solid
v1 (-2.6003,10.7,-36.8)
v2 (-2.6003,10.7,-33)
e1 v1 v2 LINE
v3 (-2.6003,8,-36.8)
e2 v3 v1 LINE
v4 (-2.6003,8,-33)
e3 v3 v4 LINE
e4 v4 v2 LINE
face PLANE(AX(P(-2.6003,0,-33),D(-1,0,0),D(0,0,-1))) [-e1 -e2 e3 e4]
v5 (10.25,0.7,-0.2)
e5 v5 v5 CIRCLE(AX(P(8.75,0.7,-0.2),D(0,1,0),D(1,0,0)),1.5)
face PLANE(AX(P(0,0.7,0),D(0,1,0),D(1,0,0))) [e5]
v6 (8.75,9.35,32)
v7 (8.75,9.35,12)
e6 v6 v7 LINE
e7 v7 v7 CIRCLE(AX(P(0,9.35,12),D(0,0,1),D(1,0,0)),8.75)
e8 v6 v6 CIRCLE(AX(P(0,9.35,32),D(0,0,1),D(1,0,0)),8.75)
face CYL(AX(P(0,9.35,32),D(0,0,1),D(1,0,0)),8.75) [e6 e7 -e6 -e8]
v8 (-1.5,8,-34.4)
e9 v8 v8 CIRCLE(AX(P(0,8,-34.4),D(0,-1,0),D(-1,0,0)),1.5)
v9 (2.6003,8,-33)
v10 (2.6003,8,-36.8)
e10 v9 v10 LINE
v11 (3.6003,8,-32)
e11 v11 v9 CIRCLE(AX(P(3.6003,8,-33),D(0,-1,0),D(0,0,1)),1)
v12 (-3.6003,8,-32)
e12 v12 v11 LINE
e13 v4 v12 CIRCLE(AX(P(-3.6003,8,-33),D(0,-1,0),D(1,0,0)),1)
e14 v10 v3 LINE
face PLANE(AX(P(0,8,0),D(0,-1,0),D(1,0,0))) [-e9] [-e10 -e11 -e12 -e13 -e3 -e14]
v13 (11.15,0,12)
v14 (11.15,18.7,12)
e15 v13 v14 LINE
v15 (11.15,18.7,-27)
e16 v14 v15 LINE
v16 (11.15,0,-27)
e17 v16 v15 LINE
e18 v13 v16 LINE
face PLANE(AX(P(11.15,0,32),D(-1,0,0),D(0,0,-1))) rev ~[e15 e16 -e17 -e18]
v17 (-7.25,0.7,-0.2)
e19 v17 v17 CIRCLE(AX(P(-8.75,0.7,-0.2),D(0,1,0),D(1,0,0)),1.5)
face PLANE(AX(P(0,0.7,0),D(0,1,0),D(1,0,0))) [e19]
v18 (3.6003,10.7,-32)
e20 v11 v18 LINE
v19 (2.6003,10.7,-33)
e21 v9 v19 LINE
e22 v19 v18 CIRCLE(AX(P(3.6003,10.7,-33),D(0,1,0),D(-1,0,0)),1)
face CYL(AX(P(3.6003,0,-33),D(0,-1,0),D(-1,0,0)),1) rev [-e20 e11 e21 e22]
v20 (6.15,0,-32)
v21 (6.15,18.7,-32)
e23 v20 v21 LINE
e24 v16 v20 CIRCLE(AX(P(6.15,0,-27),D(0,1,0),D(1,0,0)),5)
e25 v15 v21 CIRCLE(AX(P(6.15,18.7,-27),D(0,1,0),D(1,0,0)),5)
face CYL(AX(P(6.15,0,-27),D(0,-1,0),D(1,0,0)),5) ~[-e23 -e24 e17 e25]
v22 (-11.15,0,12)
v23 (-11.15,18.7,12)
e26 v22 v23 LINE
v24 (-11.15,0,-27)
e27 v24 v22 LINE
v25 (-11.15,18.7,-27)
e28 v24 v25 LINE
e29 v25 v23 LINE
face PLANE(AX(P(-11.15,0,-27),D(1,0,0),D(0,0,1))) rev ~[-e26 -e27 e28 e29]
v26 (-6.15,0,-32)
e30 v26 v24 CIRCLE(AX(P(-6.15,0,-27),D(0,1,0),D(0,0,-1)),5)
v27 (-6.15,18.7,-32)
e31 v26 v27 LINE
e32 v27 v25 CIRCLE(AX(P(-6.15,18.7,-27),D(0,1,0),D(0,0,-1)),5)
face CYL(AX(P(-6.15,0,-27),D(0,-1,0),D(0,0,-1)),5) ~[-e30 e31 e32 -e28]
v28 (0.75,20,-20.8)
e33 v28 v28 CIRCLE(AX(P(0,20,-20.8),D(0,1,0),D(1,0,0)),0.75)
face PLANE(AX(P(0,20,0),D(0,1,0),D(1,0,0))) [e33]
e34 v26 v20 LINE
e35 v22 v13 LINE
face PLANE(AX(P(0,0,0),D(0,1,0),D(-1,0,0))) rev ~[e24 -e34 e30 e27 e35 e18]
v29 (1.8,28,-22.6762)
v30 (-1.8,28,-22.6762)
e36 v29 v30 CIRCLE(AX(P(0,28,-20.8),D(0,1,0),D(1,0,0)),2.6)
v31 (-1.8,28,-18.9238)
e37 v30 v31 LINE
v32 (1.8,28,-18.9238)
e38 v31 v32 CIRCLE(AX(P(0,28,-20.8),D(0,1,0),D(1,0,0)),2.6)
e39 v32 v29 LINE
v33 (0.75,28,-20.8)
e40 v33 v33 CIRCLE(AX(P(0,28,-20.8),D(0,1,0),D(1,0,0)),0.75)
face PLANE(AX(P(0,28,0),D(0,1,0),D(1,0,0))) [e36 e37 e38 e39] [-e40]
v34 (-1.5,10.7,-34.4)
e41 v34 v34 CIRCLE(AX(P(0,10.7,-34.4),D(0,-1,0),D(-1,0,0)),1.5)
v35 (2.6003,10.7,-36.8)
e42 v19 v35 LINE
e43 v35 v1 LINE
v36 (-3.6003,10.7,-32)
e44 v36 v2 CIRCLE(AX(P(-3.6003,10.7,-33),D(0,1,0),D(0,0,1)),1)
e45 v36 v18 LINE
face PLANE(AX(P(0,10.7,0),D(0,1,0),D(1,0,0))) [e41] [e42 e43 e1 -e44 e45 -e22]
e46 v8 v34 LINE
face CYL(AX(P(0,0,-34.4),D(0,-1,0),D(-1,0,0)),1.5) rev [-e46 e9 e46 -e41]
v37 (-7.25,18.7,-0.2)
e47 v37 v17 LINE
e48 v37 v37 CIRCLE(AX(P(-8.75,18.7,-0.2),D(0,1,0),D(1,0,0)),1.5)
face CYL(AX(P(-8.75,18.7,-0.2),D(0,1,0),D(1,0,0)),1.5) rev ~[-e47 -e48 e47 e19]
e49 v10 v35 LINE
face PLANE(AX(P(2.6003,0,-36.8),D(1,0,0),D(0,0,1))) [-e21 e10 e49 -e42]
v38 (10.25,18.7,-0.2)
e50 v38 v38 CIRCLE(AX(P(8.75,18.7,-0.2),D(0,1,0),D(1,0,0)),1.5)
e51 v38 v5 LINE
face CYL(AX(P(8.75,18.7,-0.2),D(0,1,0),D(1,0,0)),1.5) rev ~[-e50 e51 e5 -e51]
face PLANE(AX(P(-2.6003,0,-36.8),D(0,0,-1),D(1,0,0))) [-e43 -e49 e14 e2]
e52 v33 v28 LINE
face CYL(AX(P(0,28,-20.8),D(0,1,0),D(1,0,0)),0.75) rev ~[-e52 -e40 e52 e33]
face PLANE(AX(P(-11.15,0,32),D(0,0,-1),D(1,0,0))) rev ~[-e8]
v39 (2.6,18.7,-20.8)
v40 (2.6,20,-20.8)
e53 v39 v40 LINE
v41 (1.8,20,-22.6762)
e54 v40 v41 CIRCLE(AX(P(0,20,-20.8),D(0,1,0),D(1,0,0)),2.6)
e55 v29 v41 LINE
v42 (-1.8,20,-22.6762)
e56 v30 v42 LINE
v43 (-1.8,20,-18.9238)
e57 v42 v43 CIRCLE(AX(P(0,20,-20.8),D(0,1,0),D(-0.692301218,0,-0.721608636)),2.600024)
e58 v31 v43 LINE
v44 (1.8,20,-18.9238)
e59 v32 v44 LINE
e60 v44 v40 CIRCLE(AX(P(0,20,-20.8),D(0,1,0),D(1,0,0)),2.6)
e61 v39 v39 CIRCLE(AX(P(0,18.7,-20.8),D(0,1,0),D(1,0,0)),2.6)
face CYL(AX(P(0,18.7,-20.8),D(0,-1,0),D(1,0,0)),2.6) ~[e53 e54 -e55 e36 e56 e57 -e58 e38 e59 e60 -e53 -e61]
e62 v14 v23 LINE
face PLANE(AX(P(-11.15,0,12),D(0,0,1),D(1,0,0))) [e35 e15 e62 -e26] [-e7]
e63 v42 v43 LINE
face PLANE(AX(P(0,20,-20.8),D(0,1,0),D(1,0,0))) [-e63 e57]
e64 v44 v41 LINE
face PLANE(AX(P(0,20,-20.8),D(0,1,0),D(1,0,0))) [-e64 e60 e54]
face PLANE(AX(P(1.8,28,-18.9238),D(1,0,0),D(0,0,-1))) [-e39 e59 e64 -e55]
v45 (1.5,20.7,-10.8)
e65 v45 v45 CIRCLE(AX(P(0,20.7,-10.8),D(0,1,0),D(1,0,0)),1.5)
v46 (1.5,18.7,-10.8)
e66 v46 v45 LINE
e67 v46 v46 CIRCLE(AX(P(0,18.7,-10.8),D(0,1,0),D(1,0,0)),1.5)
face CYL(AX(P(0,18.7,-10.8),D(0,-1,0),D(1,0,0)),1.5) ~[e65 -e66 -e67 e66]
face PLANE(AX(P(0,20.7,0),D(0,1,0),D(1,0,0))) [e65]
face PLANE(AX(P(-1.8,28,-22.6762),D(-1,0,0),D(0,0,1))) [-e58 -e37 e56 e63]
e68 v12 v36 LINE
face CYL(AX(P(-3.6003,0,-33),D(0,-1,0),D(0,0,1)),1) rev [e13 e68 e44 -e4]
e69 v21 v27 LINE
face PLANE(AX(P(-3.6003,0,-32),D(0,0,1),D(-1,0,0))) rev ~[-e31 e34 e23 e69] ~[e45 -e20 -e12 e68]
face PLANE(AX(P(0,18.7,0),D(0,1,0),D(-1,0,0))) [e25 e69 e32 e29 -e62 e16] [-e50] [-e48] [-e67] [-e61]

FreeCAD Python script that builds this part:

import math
import FreeCAD as App
import Part
import Sketcher
from FreeCAD import Vector
Q = App.Units.Quantity


def add_polygon(sketch, points):
    """Adds a closed chain of lines whose ends are joined by coincident constraints."""
    first, n = sketch.GeometryCount, len(points)
    for a, b in zip(points, points[1:] + points[:1]):
        sketch.addGeometry(Part.LineSegment(App.Vector(*a, 0), App.Vector(*b, 0)), False)
    for i in range(n):
        sketch.addConstraint(Sketcher.Constraint("Coincident", first + i, 2, first + (i + 1) % n, 1))

doc = App.newDocument("Part")
body = doc.addObject("PartDesign::Body", "Body")

sketch1 = body.newObject("Sketcher::SketchObject", "Sketch")
sketch1.AttachmentSupport = (doc.getObject("XZ_Plane"), [""])
sketch1.MapMode = "FlatFace"
sketch1.addGeometry([
    Part.LineSegment(Vector(-11.15, -27, 0), Vector(-11.15, 32, 0)),
    Part.LineSegment(Vector(-11.15, 32, 0), Vector(11.15, 32, 0)),
    Part.LineSegment(Vector(11.15, 32, 0), Vector(11.15, -27, 0)),
    Part.ArcOfCircle(Part.Circle(Vector(6.15, -27, 0), Vector(0, 0, 1), 5), math.radians(-90), math.radians(0)),
    Part.LineSegment(Vector(6.15, -32, 0), Vector(3.6003, -32, 0)),
    Part.ArcOfCircle(Part.Circle(Vector(3.6003, -33, 0), Vector(0, 0, 1), 1), math.radians(90), math.radians(180)),
    Part.LineSegment(Vector(2.6003, -33, 0), Vector(2.6003, -36.8, 0)),
    Part.LineSegment(Vector(2.6003, -36.8, 0), Vector(-2.6003, -36.8, 0)),
    Part.LineSegment(Vector(-2.6003, -36.8, 0), Vector(-2.6003, -33, 0)),
    Part.ArcOfCircle(Part.Circle(Vector(-3.6003, -33, 0), Vector(0, 0, 1), 1), math.radians(0), math.radians(90)),
    Part.LineSegment(Vector(-3.6003, -32, 0), Vector(-6.15, -32, 0)),
    Part.ArcOfCircle(Part.Circle(Vector(-6.15, -27, 0), Vector(0, 0, 1), 5), math.radians(180), math.radians(270)),
    Part.Circle(Vector(0, -34.4, 0), Vector(0, 0, 1), 1.5),
], False)
sketch1.addConstraint([
    Sketcher.Constraint("Coincident", 0, 2, 1, 1),
    Sketcher.Constraint("Coincident", 1, 2, 2, 1),
    Sketcher.Constraint("Tangent", 2, 2, 3, 2),
    Sketcher.Constraint("Tangent", 3, 1, 4, 1),
    Sketcher.Constraint("Tangent", 4, 2, 5, 1),
    Sketcher.Constraint("Tangent", 5, 2, 6, 1),
    Sketcher.Constraint("Coincident", 6, 2, 7, 1),
    Sketcher.Constraint("Coincident", 7, 2, 8, 1),
    Sketcher.Constraint("Tangent", 8, 2, 9, 1),
    Sketcher.Constraint("Tangent", 9, 2, 10, 1),
    Sketcher.Constraint("Tangent", 10, 2, 11, 2),
    Sketcher.Constraint("Tangent", 11, 1, 0, 1),
    Sketcher.Constraint("Vertical", 0),
    Sketcher.Constraint("Horizontal", 1),
    Sketcher.Constraint("Vertical", 2),
    Sketcher.Constraint("Horizontal", 4),
    Sketcher.Constraint("Vertical", 6),
    Sketcher.Constraint("Horizontal", 7),
    Sketcher.Constraint("Vertical", 8),
    Sketcher.Constraint("Horizontal", 10),
    Sketcher.Constraint("Equal", 5, 9),
    Sketcher.Constraint("Equal", 3, 11),
    Sketcher.Constraint("Symmetric", 5, 3, 9, 3, -2),
    Sketcher.Constraint("PointOnObject", 12, 3, -2),
    Sketcher.Constraint("Equal", 4, 10),
    Sketcher.Constraint("Diameter", 12, Q("3 mm")),
    Sketcher.Constraint("Radius", 3, Q("5 mm")),
    Sketcher.Constraint("Radius", 5, Q("1 mm")),
    Sketcher.Constraint("DistanceX", 1, 1, 1, 2, Q("22.3 mm")),
    Sketcher.Constraint("DistanceY", 12, 3, 3, 1, Q("2.4 mm")),
    Sketcher.Constraint("DistanceY", 6, 2, 12, 3, Q("2.4 mm")),
    Sketcher.Constraint("DistanceY", 0, 1, 0, 2, Q("59 mm")),
    Sketcher.Constraint("DistanceY", 3, 3, -1, 1, Q("27 mm")),
    Sketcher.Constraint("DistanceX", 4, 2, 4, 1, Q("2.5497 mm")),
])
pad1 = body.newObject("PartDesign::Pad", "Pad")
pad1.Profile = sketch1
pad1.Length = 18.7
pad1.Reversed = True

sketch2 = body.newObject("Sketcher::SketchObject", "Sketch001")
sketch2.AttachmentSupport = (doc.getObject("XZ_Plane"), [""])
sketch2.MapMode = "FlatFace"
sketch2.AttachmentOffset = App.Placement(Vector(0, 0, -18.7), App.Rotation())
sketch2.addGeometry([
    Part.Circle(Vector(8.75, -0.2, 0), Vector(0, 0, 1), 1.5),
    Part.Circle(Vector(-8.75, -0.2, 0), Vector(0, 0, 1), 1.5),
], False)
sketch2.addConstraint([
    Sketcher.Constraint("Equal", 0, 1),
    Sketcher.Constraint("Symmetric", 0, 3, 1, 3, -2),
    Sketcher.Constraint("Diameter", 0, Q("3 mm")),
    Sketcher.Constraint("DistanceX", 1, 3, 0, 3, Q("17.5 mm")),
    Sketcher.Constraint("DistanceY", 0, 3, -1, 1, Q("0.2 mm")),
])
pocket1 = body.newObject("PartDesign::Pocket", "Pocket")
pocket1.Profile = sketch2
pocket1.Length = 18
pocket1.Reversed = True

sketch3 = body.newObject("Sketcher::SketchObject", "Sketch002")
sketch3.AttachmentSupport = (doc.getObject("XZ_Plane"), [""])
sketch3.MapMode = "FlatFace"
sketch3.AttachmentOffset = App.Placement(Vector(0, 0, -18.7), App.Rotation())
sketch3.addGeometry(Part.Circle(Vector(0, -20.8, 0), Vector(0, 0, 1), 2.6), False)
sketch3.addConstraint([
    Sketcher.Constraint("PointOnObject", 0, 3, -2),
    Sketcher.Constraint("Diameter", 0, Q("5.2 mm")),
    Sketcher.Constraint("DistanceY", 0, 3, -1, 1, Q("20.8 mm")),
])
pad2 = body.newObject("PartDesign::Pad", "Pad001")
pad2.Profile = sketch3
pad2.Length = 9.3
pad2.Reversed = True

sketch4 = body.newObject("Sketcher::SketchObject", "Sketch003")
sketch4.AttachmentSupport = (doc.getObject("XZ_Plane"), [""])
sketch4.MapMode = "FlatFace"
sketch4.AttachmentOffset = App.Placement(Vector(0, 0, -18.7), App.Rotation())
sketch4.addGeometry(Part.Circle(Vector(0, -10.8, 0), Vector(0, 0, 1), 1.5), False)
sketch4.addConstraint([
    Sketcher.Constraint("PointOnObject", 0, 3, -2),
    Sketcher.Constraint("Diameter", 0, Q("3 mm")),
    Sketcher.Constraint("DistanceY", 0, 3, -1, 1, Q("10.8 mm")),
])
pad3 = body.newObject("PartDesign::Pad", "Pad002")
pad3.Profile = sketch4
pad3.Length = 2
pad3.Reversed = True

sketch5 = body.newObject("Sketcher::SketchObject", "Sketch004")
sketch5.AttachmentSupport = (doc.getObject("XZ_Plane"), [""])
sketch5.MapMode = "FlatFace"
sketch5.AttachmentOffset = App.Placement(Vector(0, 0, -28), App.Rotation())
sketch5.addGeometry([
    Part.LineSegment(Vector(1.8, -22.6762, 0), Vector(1.8, -18.9238, 0)),
    Part.ArcOfCircle(Part.Circle(Vector(0, -20.8, 0), Vector(0, 0, 1), 2.6), math.radians(-46.187453), math.radians(46.187453)),
    Part.ArcOfCircle(Part.Circle(Vector(0, -20.8, 0), Vector(0, 0, 1), 2.600024), math.radians(133.812547), math.radians(226.187453)),
    Part.LineSegment(Vector(-1.8, -18.9238, 0), Vector(-1.8, -22.6762, 0)),
], False)
sketch5.addConstraint([
    Sketcher.Constraint("Coincident", 0, 1, 1, 1),
    Sketcher.Constraint("Coincident", 1, 2, 0, 2),
    Sketcher.Constraint("Coincident", 2, 1, 3, 1),
    Sketcher.Constraint("Coincident", 3, 2, 2, 2),
    Sketcher.Constraint("Vertical", 0),
    Sketcher.Constraint("Vertical", 3),
    Sketcher.Constraint("Coincident", 2, 3, 1, 3),
    Sketcher.Constraint("Equal", 1, 2),
    Sketcher.Constraint("Symmetric", 1, 2, 2, 1, -2),
    Sketcher.Constraint("Radius", 1, Q("2.6 mm")),
    Sketcher.Constraint("DistanceY", 1, 3, -1, 1, Q("20.8 mm")),
    Sketcher.Constraint("DistanceX", -1, 1, 0, 1, Q("1.8 mm")),
])
pocket2 = body.newObject("PartDesign::Pocket", "Pocket001")
pocket2.Profile = sketch5
pocket2.Length = 8
pocket2.Reversed = True

sketch6 = body.newObject("Sketcher::SketchObject", "Sketch005")
sketch6.AttachmentSupport = (doc.getObject("XZ_Plane"), [""])
sketch6.MapMode = "FlatFace"
sketch6.AttachmentOffset = App.Placement(Vector(0, 0, -28), App.Rotation())
sketch6.addGeometry(Part.Circle(Vector(0, -20.8, 0), Vector(0, 0, 1), 0.75), False)
sketch6.addConstraint([
    Sketcher.Constraint("PointOnObject", 0, 3, -2),
    Sketcher.Constraint("Diameter", 0, Q("1.5 mm")),
    Sketcher.Constraint("DistanceY", 0, 3, -1, 1, Q("20.8 mm")),
])
pocket3 = body.newObject("PartDesign::Pocket", "Pocket002")
pocket3.Profile = sketch6
pocket3.Length = 8
pocket3.Reversed = True

sketch7 = body.newObject("Sketcher::SketchObject", "Sketch006")
sketch7.AttachmentSupport = (doc.getObject("XY_Plane"), [""])
sketch7.MapMode = "FlatFace"
sketch7.AttachmentOffset = App.Placement(Vector(0, 0, 32), App.Rotation())
add_polygon(sketch7, [(-11.15, 18.7), (-11.15, 0), (11.15, 0), (11.15, 18.7)])
sketch7.addGeometry(Part.Circle(Vector(0, 9.35, 0), Vector(0, 0, 1), 8.75), False)
sketch7.addConstraint([
    Sketcher.Constraint("Vertical", 0),
    Sketcher.Constraint("Horizontal", 1),
    Sketcher.Constraint("Vertical", 2),
    Sketcher.Constraint("Horizontal", 3),
    Sketcher.Constraint("Symmetric", 0, 2, 1, 2, -1, 1),
    Sketcher.Constraint("PointOnObject", 4, 3, -2),
    Sketcher.Constraint("Diameter", 4, Q("17.5 mm")),
    Sketcher.Constraint("DistanceX", 1, 1, 1, 2, Q("22.3 mm")),
    Sketcher.Constraint("DistanceY", 0, 2, 0, 1, Q("18.7 mm")),
    Sketcher.Constraint("DistanceY", -1, 1, 4, 3, Q("9.35 mm")),
])
pocket4 = body.newObject("PartDesign::Pocket", "Pocket003")
pocket4.Profile = sketch7
pocket4.Length = 20

sketch8 = body.newObject("Sketcher::SketchObject", "Sketch007")
sketch8.AttachmentSupport = (doc.getObject("XZ_Plane"), [""])
sketch8.MapMode = "FlatFace"
sketch8.addGeometry([
    Part.ArcOfCircle(Part.Circle(Vector(3.6003, -33, 0), Vector(0, 0, 1), 1), math.radians(90), math.radians(180)),
    Part.LineSegment(Vector(3.6003, -32, 0), Vector(-3.6003, -32, 0)),
    Part.ArcOfCircle(Part.Circle(Vector(-3.6003, -33, 0), Vector(0, 0, 1), 1), math.radians(0), math.radians(90)),
    Part.LineSegment(Vector(-2.6003, -33, 0), Vector(-2.6003, -36.8, 0)),
    Part.LineSegment(Vector(-2.6003, -36.8, 0), Vector(2.6003, -36.8, 0)),
    Part.LineSegment(Vector(2.6003, -36.8, 0), Vector(2.6003, -33, 0)),
    Part.Circle(Vector(0, -34.4, 0), Vector(0, 0, 1), 1.5),
], False)
sketch8.addConstraint([
    Sketcher.Constraint("Tangent", 0, 1, 1, 1),
    Sketcher.Constraint("Tangent", 1, 2, 2, 2),
    Sketcher.Constraint("Tangent", 2, 1, 3, 1),
    Sketcher.Constraint("Coincident", 3, 2, 4, 1),
    Sketcher.Constraint("Coincident", 4, 2, 5, 1),
    Sketcher.Constraint("Tangent", 5, 2, 0, 2),
    Sketcher.Constraint("Horizontal", 1),
    Sketcher.Constraint("Vertical", 3),
    Sketcher.Constraint("Horizontal", 4),
    Sketcher.Constraint("Vertical", 5),
    Sketcher.Constraint("Equal", 0, 2),
    Sketcher.Constraint("PointOnObject", 6, 3, -2),
    Sketcher.Constraint("Diameter", 6, Q("3 mm")),
    Sketcher.Constraint("Radius", 0, Q("1 mm")),
    Sketcher.Constraint("DistanceY", 3, 2, 3, 1, Q("3.8 mm")),
    Sketcher.Constraint("DistanceY", 0, 3, -1, 1, Q("33 mm")),
    Sketcher.Constraint("DistanceY", 6, 3, -1, 1, Q("34.4 mm")),
    Sketcher.Constraint("DistanceX", 1, 2, 1, 1, Q("7.2006 mm")),
    Sketcher.Constraint("DistanceX", -1, 1, 0, 3, Q("3.6003 mm")),
])
pocket5 = body.newObject("PartDesign::Pocket", "Pocket004")
pocket5.Profile = sketch8
pocket5.Length = 8

sketch9 = body.newObject("Sketcher::SketchObject", "Sketch008")
sketch9.AttachmentSupport = (doc.getObject("XZ_Plane"), [""])
sketch9.MapMode = "FlatFace"
sketch9.AttachmentOffset = App.Placement(Vector(0, 0, -18.7), App.Rotation())
sketch9.addGeometry([
    Part.ArcOfCircle(Part.Circle(Vector(-3.6003, -33, 0), Vector(0, 0, 1), 1), math.radians(0), math.radians(90)),
    Part.LineSegment(Vector(-3.6003, -32, 0), Vector(3.6003, -32, 0)),
    Part.ArcOfCircle(Part.Circle(Vector(3.6003, -33, 0), Vector(0, 0, 1), 1), math.radians(90), math.radians(180)),
    Part.LineSegment(Vector(2.6003, -33, 0), Vector(2.6003, -36.8, 0)),
    Part.LineSegment(Vector(2.6003, -36.8, 0), Vector(-2.6003, -36.8, 0)),
    Part.LineSegment(Vector(-2.6003, -36.8, 0), Vector(-2.6003, -33, 0)),
    Part.Circle(Vector(0, -34.4, 0), Vector(0, 0, 1), 1.5),
], False)
sketch9.addConstraint([
    Sketcher.Constraint("Tangent", 0, 2, 1, 1),
    Sketcher.Constraint("Tangent", 1, 2, 2, 1),
    Sketcher.Constraint("Tangent", 2, 2, 3, 1),
    Sketcher.Constraint("Coincident", 3, 2, 4, 1),
    Sketcher.Constraint("Coincident", 4, 2, 5, 1),
    Sketcher.Constraint("Tangent", 5, 2, 0, 1),
    Sketcher.Constraint("Horizontal", 1),
    Sketcher.Constraint("Vertical", 3),
    Sketcher.Constraint("Horizontal", 4),
    Sketcher.Constraint("Vertical", 5),
    Sketcher.Constraint("Equal", 0, 2),
    Sketcher.Constraint("PointOnObject", 6, 3, -2),
    Sketcher.Constraint("Diameter", 6, Q("3 mm")),
    Sketcher.Constraint("Radius", 0, Q("1 mm")),
    Sketcher.Constraint("DistanceY", 3, 2, 3, 1, Q("3.8 mm")),
    Sketcher.Constraint("DistanceY", 0, 3, -1, 1, Q("33 mm")),
    Sketcher.Constraint("DistanceY", 6, 3, -1, 1, Q("34.4 mm")),
    Sketcher.Constraint("DistanceX", 1, 1, 1, 2, Q("7.2006 mm")),
    Sketcher.Constraint("DistanceX", 0, 3, -1, 1, Q("3.6003 mm")),
])
pocket6 = body.newObject("PartDesign::Pocket", "Pocket005")
pocket6.Profile = sketch9
pocket6.Length = 8
pocket6.Reversed = True

doc.recompute()
